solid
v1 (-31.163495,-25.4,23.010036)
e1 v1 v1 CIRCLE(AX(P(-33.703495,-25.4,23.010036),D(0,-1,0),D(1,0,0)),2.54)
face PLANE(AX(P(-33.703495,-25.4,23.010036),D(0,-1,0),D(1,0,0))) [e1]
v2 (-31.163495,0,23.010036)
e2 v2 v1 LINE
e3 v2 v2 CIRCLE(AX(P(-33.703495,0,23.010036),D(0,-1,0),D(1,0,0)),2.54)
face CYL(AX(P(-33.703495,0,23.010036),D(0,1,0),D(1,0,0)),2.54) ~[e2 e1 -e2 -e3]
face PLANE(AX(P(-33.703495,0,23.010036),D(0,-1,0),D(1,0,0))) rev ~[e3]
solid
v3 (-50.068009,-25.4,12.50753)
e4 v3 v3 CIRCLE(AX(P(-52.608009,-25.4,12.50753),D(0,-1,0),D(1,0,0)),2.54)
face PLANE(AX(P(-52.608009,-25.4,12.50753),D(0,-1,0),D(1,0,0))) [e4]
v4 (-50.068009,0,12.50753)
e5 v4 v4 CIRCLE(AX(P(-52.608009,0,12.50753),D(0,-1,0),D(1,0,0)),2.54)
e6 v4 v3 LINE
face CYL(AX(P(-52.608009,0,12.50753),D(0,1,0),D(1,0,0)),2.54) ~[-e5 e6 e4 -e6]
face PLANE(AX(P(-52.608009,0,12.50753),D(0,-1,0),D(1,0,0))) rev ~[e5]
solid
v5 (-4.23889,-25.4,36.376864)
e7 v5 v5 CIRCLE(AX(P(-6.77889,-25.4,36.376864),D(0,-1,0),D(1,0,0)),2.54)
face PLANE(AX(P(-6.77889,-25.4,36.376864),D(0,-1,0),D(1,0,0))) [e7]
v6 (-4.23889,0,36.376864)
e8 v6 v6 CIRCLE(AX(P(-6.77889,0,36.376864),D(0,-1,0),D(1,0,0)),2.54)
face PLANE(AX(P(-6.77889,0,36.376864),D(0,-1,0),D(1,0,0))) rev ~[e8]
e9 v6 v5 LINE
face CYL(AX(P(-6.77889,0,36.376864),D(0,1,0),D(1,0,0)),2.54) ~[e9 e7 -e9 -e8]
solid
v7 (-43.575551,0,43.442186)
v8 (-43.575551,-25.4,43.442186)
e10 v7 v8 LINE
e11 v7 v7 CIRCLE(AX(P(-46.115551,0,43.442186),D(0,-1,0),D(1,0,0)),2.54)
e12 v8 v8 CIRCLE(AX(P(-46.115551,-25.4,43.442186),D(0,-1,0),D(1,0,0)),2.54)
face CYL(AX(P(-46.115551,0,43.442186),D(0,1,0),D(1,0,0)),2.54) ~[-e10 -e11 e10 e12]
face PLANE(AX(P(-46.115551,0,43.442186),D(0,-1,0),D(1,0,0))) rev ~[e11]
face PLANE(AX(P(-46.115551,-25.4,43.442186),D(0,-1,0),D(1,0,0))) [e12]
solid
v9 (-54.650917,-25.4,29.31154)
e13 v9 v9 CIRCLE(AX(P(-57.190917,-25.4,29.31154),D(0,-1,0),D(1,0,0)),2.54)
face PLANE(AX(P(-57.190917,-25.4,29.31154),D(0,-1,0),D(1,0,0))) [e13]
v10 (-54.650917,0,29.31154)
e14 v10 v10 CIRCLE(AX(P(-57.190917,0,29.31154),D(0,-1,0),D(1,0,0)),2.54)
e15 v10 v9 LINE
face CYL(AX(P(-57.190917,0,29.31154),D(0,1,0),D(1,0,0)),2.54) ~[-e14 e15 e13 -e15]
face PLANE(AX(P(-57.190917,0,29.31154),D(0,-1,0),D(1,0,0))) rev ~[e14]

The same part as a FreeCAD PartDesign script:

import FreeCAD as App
import Part
import Sketcher
Q = App.Units.Quantity

doc = App.newDocument("Part")
params = doc.addObject("Spreadsheet::Sheet", "Params")
for row, (alias, value) in enumerate([
    ("sketch1_diameter", "0.2 in"),
    ("pad1_length", "1 in"),
], start=1):
    params.set(f"A{row}", alias)
    params.set(f"B{row}", "=" + value)
    params.setAlias(f"B{row}", alias)

body = doc.addObject("PartDesign::Body", "Body")
body.AllowCompound = True

# Sketch on XZ plane
sketch1 = doc.addObject("Sketcher::SketchObject", "Sketch")
body.addObject(sketch1)
sketch1.AttachmentSupport = (doc.XZ_Plane, [""])
sketch1.MapMode = "FlatFace"
sketch1.addGeometry(Part.Circle(App.Vector(-33.703495, 23.010036, 0), App.Vector(0, 0, 1), 2.54), False)
sketch1.addGeometry(Part.Circle(App.Vector(-6.77889, 36.376864, 0), App.Vector(0, 0, 1), 2.54), False)
sketch1.addGeometry(Part.Circle(App.Vector(-46.115551, 43.442186, 0), App.Vector(0, 0, 1), 2.54), False)
sketch1.addGeometry(Part.Circle(App.Vector(-57.190917, 29.31154, 0), App.Vector(0, 0, 1), 2.54), False)
sketch1.addGeometry(Part.Circle(App.Vector(-52.608009, 12.50753, 0), App.Vector(0, 0, 1), 2.54), False)
sketch1.addConstraint(Sketcher.Constraint("Equal", 0, 1))
sketch1.addConstraint(Sketcher.Constraint("Equal", 1, 2))
sketch1.addConstraint(Sketcher.Constraint("Equal", 2, 3))
sketch1.addConstraint(Sketcher.Constraint("Equal", 3, 4))
sketch1.addConstraint(Sketcher.Constraint("Diameter", 0, Q("0.2 in")))
sketch1.addConstraint(Sketcher.Constraint("DistanceY", 4, 3, 2, 3, Q("1.2178998 in")))
sketch1.addConstraint(Sketcher.Constraint("DistanceX", 1, 3, -1, 1, Q("6.77889 mm")))
sketch1.addConstraint(Sketcher.Constraint("DistanceX", 2, 3, -1, 1, Q("46.115551 mm")))
sketch1.addConstraint(Sketcher.Constraint("DistanceY", -1, 1, 3, 3, Q("29.31154 mm")))
sketch1.addConstraint(Sketcher.Constraint("DistanceX", 4, 3, -1, 1, Q("52.608009 mm")))
sketch1.addConstraint(Sketcher.Constraint("DistanceY", -1, 1, 4, 3, Q("12.50753 mm")))
sketch1.addConstraint(Sketcher.Constraint("DistanceY", 0, 3, 2, 3, Q("20.43215 mm")))
sketch1.addConstraint(Sketcher.Constraint("DistanceX", 0, 3, -1, 1, Q("33.703495 mm")))
sketch1.addConstraint(Sketcher.Constraint("DistanceY", -1, 1, 1, 3, Q("36.376864 mm")))
sketch1.addConstraint(Sketcher.Constraint("DistanceX", 3, 3, -1, 1, Q("57.190917 mm")))
sketch1.setExpression("Constraints[4]", "Params.sketch1_diameter")
pad1 = doc.addObject("PartDesign::Pad", "Pad")
body.addObject(pad1)
pad1.Profile = sketch1
pad1.setExpression("Length", "Params.pad1_length")

doc.recompute()
